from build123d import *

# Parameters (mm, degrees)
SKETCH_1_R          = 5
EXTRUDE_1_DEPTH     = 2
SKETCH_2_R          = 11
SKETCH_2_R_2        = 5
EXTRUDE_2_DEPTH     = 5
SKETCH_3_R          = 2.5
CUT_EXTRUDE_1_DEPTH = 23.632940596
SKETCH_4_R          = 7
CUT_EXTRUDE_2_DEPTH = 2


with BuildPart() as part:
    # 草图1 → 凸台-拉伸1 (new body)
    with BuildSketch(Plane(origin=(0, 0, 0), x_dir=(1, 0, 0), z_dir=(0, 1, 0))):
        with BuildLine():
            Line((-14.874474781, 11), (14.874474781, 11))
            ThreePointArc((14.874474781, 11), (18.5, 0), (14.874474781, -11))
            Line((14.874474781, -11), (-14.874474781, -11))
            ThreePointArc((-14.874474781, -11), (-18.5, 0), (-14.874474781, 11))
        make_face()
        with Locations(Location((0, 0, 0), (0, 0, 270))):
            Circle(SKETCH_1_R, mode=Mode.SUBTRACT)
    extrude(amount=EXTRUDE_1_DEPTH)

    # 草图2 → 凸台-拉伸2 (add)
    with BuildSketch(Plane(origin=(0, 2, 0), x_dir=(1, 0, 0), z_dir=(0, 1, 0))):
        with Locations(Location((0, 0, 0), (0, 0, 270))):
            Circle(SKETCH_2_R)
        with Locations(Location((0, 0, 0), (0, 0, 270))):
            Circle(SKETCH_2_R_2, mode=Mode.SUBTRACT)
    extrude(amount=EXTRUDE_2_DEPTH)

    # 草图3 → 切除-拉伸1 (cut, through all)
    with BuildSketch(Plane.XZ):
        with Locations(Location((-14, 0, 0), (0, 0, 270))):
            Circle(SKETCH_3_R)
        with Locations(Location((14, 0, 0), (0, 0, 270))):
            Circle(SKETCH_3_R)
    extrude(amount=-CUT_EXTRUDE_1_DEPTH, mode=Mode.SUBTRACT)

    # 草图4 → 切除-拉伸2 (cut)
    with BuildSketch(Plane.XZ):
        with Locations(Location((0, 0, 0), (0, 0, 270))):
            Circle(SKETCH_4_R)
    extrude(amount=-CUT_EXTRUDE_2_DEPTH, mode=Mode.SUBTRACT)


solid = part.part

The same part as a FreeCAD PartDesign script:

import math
import FreeCAD as App
import Part
import Sketcher

V = App.Vector

doc = App.newDocument("Part")
body = doc.addObject("PartDesign::Body", "Body")

sketch1 = body.newObject("Sketcher::SketchObject", "Sketch")
sketch1.AttachmentSupport = (doc.getObject("XZ_Plane"), [""])
sketch1.MapMode = "FlatFace"
sketch1.addGeometry(Part.LineSegment(V(14.874475, -11, 0), V(-14.874475, -11, 0)), False)
sketch1.addGeometry(Part.ArcOfCircle(Part.Circle(V(0, 0, 0), V(0, 0, 1), 18.5), math.radians(143.516263), math.radians(216.483737)), False)
sketch1.addGeometry(Part.LineSegment(V(-14.874475, 11, 0), V(14.874475, 11, 0)), False)
sketch1.addGeometry(Part.ArcOfCircle(Part.Circle(V(0, 0, 0), V(0, 0, 1), 18.5), math.radians(-36.483737), math.radians(36.483737)), False)
sketch1.addGeometry(Part.Circle(V(0, 0, 0), V(0, 0, 1), 5), False)
sketch1.addConstraint(Sketcher.Constraint("Coincident", 0, 2, 1, 2))
sketch1.addConstraint(Sketcher.Constraint("Coincident", 1, 1, 2, 1))
sketch1.addConstraint(Sketcher.Constraint("Coincident", 2, 2, 3, 2))
sketch1.addConstraint(Sketcher.Constraint("Coincident", 3, 1, 0, 1))
sketch1.addConstraint(Sketcher.Constraint("Horizontal", 0))
sketch1.addConstraint(Sketcher.Constraint("Horizontal", 2))
sketch1.addConstraint(Sketcher.Constraint("Coincident", 1, 3, -1, 1))
sketch1.addConstraint(Sketcher.Constraint("Coincident", 3, 3, -1, 1))
sketch1.addConstraint(Sketcher.Constraint("Coincident", 4, 3, -1, 1))
sketch1.addConstraint(Sketcher.Constraint("Equal", 1, 3))
sketch1.addConstraint(Sketcher.Constraint("Vertical", 0, 2, 1, 1))
sketch1.addConstraint(Sketcher.Constraint("Diameter", 4, 10.0))
sketch1.addConstraint(Sketcher.Constraint("Radius", 1, 18.5))
sketch1.addConstraint(Sketcher.Constraint("DistanceY", 0, 2, -1, 1, 11.0))
pad1 = body.newObject("PartDesign::Pad", "Pad")
pad1.Profile = sketch1
pad1.Length = 2
pad1.Reversed = True

sketch2 = body.newObject("Sketcher::SketchObject", "Sketch001")
sketch2.AttachmentSupport = (doc.getObject("XZ_Plane"), [""])
sketch2.MapMode = "FlatFace"
sketch2.AttachmentOffset = App.Placement(V(0, 0, -2), App.Rotation())
sketch2.addGeometry(Part.Circle(V(0, 0, 0), V(0, 0, 1), 11), False)
sketch2.addGeometry(Part.Circle(V(0, 0, 0), V(0, 0, 1), 5), False)
sketch2.addConstraint(Sketcher.Constraint("Coincident", 0, 3, -1, 1))
sketch2.addConstraint(Sketcher.Constraint("Coincident", 1, 3, -1, 1))
sketch2.addConstraint(Sketcher.Constraint("Diameter", 0, 22.0))
sketch2.addConstraint(Sketcher.Constraint("Diameter", 1, 10.0))
pad2 = body.newObject("PartDesign::Pad", "Pad001")
pad2.Profile = sketch2
pad2.Length = 5
pad2.Reversed = True

sketch3 = body.newObject("Sketcher::SketchObject", "Sketch002")
sketch3.AttachmentSupport = (doc.getObject("XZ_Plane"), [""])
sketch3.MapMode = "FlatFace"
sketch3.addGeometry(Part.Circle(V(-14, 0, 0), V(0, 0, 1), 2.5), False)
sketch3.addGeometry(Part.Circle(V(14, 0, 0), V(0, 0, 1), 2.5), False)
sketch3.addConstraint(Sketcher.Constraint("Equal", 0, 1))
sketch3.addConstraint(Sketcher.Constraint("Symmetric", 0, 3, 1, 3, -1, 1))
sketch3.addConstraint(Sketcher.Constraint("PointOnObject", 0, 3, -1))
sketch3.addConstraint(Sketcher.Constraint("Diameter", 0, 5.0))
sketch3.addConstraint(Sketcher.Constraint("DistanceX", 0, 3, -1, 1, 14.0))
pocket1 = body.newObject("PartDesign::Pocket", "Pocket")
pocket1.Profile = sketch3
pocket1.Type = "ThroughAll"

sketch4 = body.newObject("Sketcher::SketchObject", "Sketch003")
sketch4.AttachmentSupport = (doc.getObject("XZ_Plane"), [""])
sketch4.MapMode = "FlatFace"
sketch4.addGeometry(Part.Circle(V(0, 0, 0), V(0, 0, 1), 7), False)
sketch4.addConstraint(Sketcher.Constraint("Coincident", 0, 3, -1, 1))
sketch4.addConstraint(Sketcher.Constraint("Diameter", 0, 14.0))
pocket2 = body.newObject("PartDesign::Pocket", "Pocket001")
pocket2.Profile = sketch4
pocket2.Length = 2

doc.recompute()
